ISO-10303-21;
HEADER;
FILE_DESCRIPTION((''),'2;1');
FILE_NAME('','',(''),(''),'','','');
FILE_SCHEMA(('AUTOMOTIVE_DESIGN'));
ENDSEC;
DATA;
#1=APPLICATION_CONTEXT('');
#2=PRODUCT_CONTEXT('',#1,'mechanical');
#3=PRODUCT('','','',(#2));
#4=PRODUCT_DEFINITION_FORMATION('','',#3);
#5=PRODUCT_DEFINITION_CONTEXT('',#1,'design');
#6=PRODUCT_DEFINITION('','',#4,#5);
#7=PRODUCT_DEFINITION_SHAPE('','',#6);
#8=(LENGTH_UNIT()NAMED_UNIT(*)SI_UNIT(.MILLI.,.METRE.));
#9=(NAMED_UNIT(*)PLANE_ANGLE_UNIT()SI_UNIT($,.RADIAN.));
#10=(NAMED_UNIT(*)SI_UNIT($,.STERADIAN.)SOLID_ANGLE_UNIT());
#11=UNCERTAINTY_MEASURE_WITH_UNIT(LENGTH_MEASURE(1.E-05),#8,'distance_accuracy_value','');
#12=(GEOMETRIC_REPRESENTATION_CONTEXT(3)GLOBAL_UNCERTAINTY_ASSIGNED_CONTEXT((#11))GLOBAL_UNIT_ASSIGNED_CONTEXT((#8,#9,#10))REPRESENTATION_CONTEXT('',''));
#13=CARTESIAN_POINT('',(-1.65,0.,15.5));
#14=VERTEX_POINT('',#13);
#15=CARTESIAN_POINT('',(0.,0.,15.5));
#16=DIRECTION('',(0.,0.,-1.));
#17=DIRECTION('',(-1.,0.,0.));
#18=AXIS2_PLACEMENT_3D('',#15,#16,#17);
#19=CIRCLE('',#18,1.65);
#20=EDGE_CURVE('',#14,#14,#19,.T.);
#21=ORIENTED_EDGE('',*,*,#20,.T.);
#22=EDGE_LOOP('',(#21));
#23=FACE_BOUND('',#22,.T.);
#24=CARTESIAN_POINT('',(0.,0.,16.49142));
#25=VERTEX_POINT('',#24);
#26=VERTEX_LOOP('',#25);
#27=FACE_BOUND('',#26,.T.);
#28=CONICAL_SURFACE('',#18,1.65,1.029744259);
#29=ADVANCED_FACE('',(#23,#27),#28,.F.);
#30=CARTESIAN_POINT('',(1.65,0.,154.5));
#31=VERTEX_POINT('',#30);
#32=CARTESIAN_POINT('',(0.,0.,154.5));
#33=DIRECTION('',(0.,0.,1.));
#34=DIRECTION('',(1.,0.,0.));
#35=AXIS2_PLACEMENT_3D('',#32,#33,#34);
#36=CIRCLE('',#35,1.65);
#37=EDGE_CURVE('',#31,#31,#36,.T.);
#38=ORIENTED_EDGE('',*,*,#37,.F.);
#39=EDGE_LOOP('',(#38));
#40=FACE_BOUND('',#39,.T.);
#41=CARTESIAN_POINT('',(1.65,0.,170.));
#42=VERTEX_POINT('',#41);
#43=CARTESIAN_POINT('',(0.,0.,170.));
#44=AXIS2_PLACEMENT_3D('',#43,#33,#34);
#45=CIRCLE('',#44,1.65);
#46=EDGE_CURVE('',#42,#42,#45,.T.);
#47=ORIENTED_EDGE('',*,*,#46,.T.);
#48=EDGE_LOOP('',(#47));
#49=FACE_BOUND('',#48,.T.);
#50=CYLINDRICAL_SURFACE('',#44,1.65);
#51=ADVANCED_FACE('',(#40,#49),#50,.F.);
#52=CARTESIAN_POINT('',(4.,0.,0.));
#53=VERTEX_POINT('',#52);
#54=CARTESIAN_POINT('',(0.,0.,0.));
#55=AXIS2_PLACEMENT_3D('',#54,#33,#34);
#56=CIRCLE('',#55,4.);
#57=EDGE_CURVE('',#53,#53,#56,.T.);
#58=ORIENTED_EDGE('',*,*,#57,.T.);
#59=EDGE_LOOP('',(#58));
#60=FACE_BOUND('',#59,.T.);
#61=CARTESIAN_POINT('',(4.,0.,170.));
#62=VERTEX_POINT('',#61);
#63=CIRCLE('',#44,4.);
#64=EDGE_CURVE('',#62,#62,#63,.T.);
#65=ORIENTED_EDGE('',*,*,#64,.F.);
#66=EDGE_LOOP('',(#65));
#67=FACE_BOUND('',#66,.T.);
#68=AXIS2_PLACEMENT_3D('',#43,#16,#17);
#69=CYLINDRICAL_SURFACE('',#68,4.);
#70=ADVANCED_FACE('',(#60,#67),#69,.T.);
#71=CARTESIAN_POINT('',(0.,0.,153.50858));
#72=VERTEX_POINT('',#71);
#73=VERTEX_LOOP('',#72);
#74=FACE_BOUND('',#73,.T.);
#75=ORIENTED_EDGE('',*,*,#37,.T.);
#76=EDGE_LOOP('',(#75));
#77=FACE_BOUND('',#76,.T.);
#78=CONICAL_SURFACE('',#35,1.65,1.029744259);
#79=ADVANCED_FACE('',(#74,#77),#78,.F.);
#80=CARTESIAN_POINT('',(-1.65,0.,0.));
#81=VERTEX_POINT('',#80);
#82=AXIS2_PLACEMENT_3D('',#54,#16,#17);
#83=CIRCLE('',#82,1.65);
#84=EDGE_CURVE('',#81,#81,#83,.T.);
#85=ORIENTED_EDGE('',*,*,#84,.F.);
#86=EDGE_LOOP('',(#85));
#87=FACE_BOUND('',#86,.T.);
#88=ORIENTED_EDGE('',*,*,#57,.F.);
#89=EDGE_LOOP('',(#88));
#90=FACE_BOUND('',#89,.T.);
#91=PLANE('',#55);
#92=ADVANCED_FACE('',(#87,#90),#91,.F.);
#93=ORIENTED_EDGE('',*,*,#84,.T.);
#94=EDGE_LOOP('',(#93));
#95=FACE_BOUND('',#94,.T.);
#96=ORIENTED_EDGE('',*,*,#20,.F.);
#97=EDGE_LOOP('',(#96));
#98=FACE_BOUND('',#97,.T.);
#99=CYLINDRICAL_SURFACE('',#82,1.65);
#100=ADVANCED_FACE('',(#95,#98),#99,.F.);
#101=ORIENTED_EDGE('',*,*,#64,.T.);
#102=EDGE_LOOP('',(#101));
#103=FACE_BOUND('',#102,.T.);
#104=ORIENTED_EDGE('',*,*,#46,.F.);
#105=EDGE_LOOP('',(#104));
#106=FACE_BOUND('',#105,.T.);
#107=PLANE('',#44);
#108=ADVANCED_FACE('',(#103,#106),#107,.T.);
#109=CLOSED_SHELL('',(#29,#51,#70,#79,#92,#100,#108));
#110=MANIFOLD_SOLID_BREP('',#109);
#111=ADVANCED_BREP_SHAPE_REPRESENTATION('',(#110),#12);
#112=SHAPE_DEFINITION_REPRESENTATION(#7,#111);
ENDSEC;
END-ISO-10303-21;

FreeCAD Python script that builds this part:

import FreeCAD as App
import Part
import Sketcher

V = App.Vector
Q = App.Units.Quantity

doc = App.newDocument("Part")
body = doc.addObject("PartDesign::Body", "Body")

sketch1 = body.newObject("Sketcher::SketchObject", "Sketch")
sketch1.AttachmentSupport = (doc.getObject("XY_Plane"), [""])
sketch1.MapMode = "FlatFace"
sketch1.addGeometry(Part.Circle(V(0, 0, 0), V(0, 0, 1), 4), False)
sketch1.addConstraint([
    Sketcher.Constraint("Coincident", 0, 3, -1, 1),
    Sketcher.Constraint("Diameter", 0, 8.0),
])
pad1 = body.newObject("PartDesign::Pad", "Pad")
pad1.Profile = sketch1
pad1.Length = 170

sketch2 = body.newObject("Sketcher::SketchObject", "Sketch001")
sketch2.AttachmentSupport = (doc.getObject("YZ_Plane"), [""])
sketch2.MapMode = "FlatFace"
sketch2.addGeometry([
    Part.LineSegment(V(0, 153.5, 0), V(0, 170, 0)),
    Part.LineSegment(V(0, 170, 0), V(-1.6, 170, 0)),
    Part.LineSegment(V(-1.6, 170, 0), V(-1.6, 154.5, 0)),
    Part.LineSegment(V(-1.6, 154.5, 0), V(0, 153.5, 0)),
], False)
sketch2.addConstraint([
    Sketcher.Constraint("Coincident", 0, 2, 1, 1),
    Sketcher.Constraint("Coincident", 1, 2, 2, 1),
    Sketcher.Constraint("Coincident", 2, 2, 3, 1),
    Sketcher.Constraint("Coincident", 3, 2, 0, 1),
    Sketcher.Constraint("Vertical", 0),
    Sketcher.Constraint("Horizontal", 1),
    Sketcher.Constraint("Vertical", 2),
    Sketcher.Constraint("PointOnObject", 0, 2, -2),
    Sketcher.Constraint("Angle", 3, Q("-31 deg")),
    Sketcher.Constraint("DistanceY", 2, 2, 2, 1, 15.5),
    Sketcher.Constraint("DistanceY", -1, 1, 0, 2, 170.0),
    Sketcher.Constraint("DistanceX", 1, 2, 1, 1, 1.65),
])
groove = body.newObject("PartDesign::Groove", "Groove")
groove.Profile = sketch2
groove.ReferenceAxis = (sketch2, ["V_Axis"])
groove.Angle = 360

sketch3 = body.newObject("Sketcher::SketchObject", "Sketch002")
sketch3.AttachmentSupport = (doc.getObject("XY_Plane"), [""])
sketch3.MapMode = "FlatFace"
sketch3.addGeometry(Part.Circle(V(0, 0, 0), V(0, 0, 1), 1.6), False)
sketch3.addConstraint([
    Sketcher.Constraint("Coincident", 0, 3, -1, 1),
    Sketcher.Constraint("Diameter", 0, 3.3),
])
doc.recompute()
hole = body.newObject("PartDesign::Hole", "Hole")
hole.Profile = sketch3
hole.ThreadType = "None"
hole.Diameter = 3.3
hole.DepthType = "Dimension"
hole.Depth = 15.5
hole.DrillPoint = "Angled"
hole.DrillPointAngle = 118
hole.Reversed = True

doc.recompute()
